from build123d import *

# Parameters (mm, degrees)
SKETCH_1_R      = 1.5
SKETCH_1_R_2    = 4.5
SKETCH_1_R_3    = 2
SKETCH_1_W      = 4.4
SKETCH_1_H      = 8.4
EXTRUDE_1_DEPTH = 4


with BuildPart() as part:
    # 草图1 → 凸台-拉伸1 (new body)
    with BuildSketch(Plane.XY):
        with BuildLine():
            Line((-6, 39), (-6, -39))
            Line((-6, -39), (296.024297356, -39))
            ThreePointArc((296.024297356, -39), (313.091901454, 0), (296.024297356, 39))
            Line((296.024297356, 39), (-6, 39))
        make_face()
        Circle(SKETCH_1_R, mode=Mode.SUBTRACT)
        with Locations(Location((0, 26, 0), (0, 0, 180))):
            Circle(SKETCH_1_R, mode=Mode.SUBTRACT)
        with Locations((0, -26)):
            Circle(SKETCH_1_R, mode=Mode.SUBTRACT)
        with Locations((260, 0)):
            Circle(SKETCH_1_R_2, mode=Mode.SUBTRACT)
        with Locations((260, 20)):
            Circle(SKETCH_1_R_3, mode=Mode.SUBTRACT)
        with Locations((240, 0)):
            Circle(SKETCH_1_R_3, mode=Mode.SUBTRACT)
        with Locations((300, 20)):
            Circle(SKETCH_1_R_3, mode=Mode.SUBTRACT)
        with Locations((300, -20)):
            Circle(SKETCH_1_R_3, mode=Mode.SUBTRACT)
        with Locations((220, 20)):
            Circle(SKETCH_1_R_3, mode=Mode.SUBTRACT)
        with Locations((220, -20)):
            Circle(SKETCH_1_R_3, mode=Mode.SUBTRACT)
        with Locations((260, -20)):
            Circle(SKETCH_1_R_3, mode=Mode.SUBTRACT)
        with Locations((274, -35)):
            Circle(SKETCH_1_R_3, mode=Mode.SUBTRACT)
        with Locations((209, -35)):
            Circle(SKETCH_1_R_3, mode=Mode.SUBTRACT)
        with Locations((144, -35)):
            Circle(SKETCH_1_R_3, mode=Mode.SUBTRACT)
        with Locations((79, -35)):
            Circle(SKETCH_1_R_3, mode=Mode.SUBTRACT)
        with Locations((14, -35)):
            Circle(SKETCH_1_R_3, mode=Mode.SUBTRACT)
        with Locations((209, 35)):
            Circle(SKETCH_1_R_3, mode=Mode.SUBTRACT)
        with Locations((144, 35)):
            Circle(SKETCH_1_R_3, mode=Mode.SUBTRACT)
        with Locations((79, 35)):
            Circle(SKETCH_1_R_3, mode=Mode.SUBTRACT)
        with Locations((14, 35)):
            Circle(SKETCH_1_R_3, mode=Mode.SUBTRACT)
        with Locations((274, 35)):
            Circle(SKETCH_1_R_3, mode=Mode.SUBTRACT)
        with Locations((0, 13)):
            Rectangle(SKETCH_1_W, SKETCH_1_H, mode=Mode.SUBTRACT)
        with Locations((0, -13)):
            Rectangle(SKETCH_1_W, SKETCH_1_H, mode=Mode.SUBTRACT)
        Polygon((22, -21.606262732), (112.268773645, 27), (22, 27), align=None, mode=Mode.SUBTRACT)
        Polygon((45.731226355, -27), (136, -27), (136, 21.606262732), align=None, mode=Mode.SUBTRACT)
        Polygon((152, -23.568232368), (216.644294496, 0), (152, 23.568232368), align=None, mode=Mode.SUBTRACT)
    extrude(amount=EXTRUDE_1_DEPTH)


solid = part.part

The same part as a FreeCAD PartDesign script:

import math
import FreeCAD as App
import Part
import Sketcher
from FreeCAD import Vector
Q = App.Units.Quantity


def add_polygon(sketch, points):
    """Adds a closed chain of lines whose ends are joined by coincident constraints."""
    first, n = sketch.GeometryCount, len(points)
    for a, b in zip(points, points[1:] + points[:1]):
        sketch.addGeometry(Part.LineSegment(App.Vector(*a, 0), App.Vector(*b, 0)), False)
    for i in range(n):
        sketch.addConstraint(Sketcher.Constraint("Coincident", first + i, 2, first + (i + 1) % n, 1))

doc = App.newDocument("Part")
body = doc.addObject("PartDesign::Body", "Body")

# Sketch on XY plane
sketch1 = body.newObject("Sketcher::SketchObject", "Sketch")
sketch1.AttachmentSupport = (doc.getObject("XY_Plane"), [""])
sketch1.MapMode = "FlatFace"
sketch1.addGeometry(Part.LineSegment(Vector(-6, 39, 0), Vector(-6, -39, 0)), False)  # 0
sketch1.addGeometry(Part.LineSegment(Vector(-6, -39, 0), Vector(296, -39, 0)), False)  # 1
sketch1.addGeometry(Part.ArcOfCircle(Part.Circle(Vector(260, 0, 0), Vector(0, 0, 1), 53.1), math.radians(-47), math.radians(47)), False)  # 2
sketch1.addGeometry(Part.LineSegment(Vector(296, 39, 0), Vector(-6, 39, 0)), False)  # 3
sketch1.addGeometry(Part.Circle(Vector(14, -35, 0), Vector(0, 0, 1), 2), False)  # 4
sketch1.addGeometry(Part.Circle(Vector(0, -26, 0), Vector(0, 0, 1), 1.5), False)  # 5
sketch1.addGeometry(Part.Circle(Vector(79, -35, 0), Vector(0, 0, 1), 2), False)  # 6
sketch1.addGeometry(Part.Circle(Vector(144, -35, 0), Vector(0, 0, 1), 2), False)  # 7
add_polygon(sketch1, [(2.2, -17.2), (-2.2, -17.2), (-2.2, -8.8), (2.2, -8.8)])  # lines 8-11
add_polygon(sketch1, [(136, -27), (45.7, -27), (136, 21.6)])  # lines 12-14
sketch1.addGeometry(Part.Circle(Vector(209, -35, 0), Vector(0, 0, 1), 2), False)  # 15
sketch1.addGeometry(Part.Circle(Vector(220, -20, 0), Vector(0, 0, 1), 2), False)  # 16
sketch1.addGeometry(Part.Circle(Vector(274, -35, 0), Vector(0, 0, 1), 2), False)  # 17
sketch1.addGeometry(Part.Circle(Vector(260, -20, 0), Vector(0, 0, 1), 2), False)  # 18
sketch1.addGeometry(Part.Circle(Vector(300, -20, 0), Vector(0, 0, 1), 2), False)  # 19
sketch1.addGeometry(Part.Circle(Vector(0, 0, 0), Vector(0, 0, 1), 1.5), False)  # 20
add_polygon(sketch1, [(112.3, 27), (22, -21.6), (22, 27)])  # lines 21-23
add_polygon(sketch1, [(2.2, 8.8), (-2.2, 8.8), (-2.2, 17.2), (2.2, 17.2)])  # lines 24-27
sketch1.addGeometry(Part.Circle(Vector(0, 26, 0), Vector(0, 0, 1), 1.5), False)  # 28
sketch1.addGeometry(Part.Circle(Vector(14, 35, 0), Vector(0, 0, 1), 2), False)  # 29
sketch1.addGeometry(Part.Circle(Vector(79, 35, 0), Vector(0, 0, 1), 2), False)  # 30
sketch1.addGeometry(Part.Circle(Vector(144, 35, 0), Vector(0, 0, 1), 2), False)  # 31
add_polygon(sketch1, [(216.6, 0), (152, -23.6), (152, 23.6)])  # lines 32-34
sketch1.addGeometry(Part.Circle(Vector(240, 0, 0), Vector(0, 0, 1), 2), False)  # 35
sketch1.addGeometry(Part.Circle(Vector(260, 0, 0), Vector(0, 0, 1), 4.5), False)  # 36
sketch1.addGeometry(Part.Circle(Vector(220, 20, 0), Vector(0, 0, 1), 2), False)  # 37
sketch1.addGeometry(Part.Circle(Vector(209, 35, 0), Vector(0, 0, 1), 2), False)  # 38
sketch1.addGeometry(Part.Circle(Vector(260, 20, 0), Vector(0, 0, 1), 2), False)  # 39
sketch1.addGeometry(Part.Circle(Vector(300, 20, 0), Vector(0, 0, 1), 2), False)  # 40
sketch1.addGeometry(Part.Circle(Vector(274, 35, 0), Vector(0, 0, 1), 2), False)  # 41
sketch1.addConstraint(Sketcher.Constraint("Coincident", 0, 2, 1, 1))
sketch1.addConstraint(Sketcher.Constraint("Coincident", 1, 2, 2, 1))
sketch1.addConstraint(Sketcher.Constraint("Coincident", 2, 2, 3, 1))
sketch1.addConstraint(Sketcher.Constraint("Coincident", 3, 2, 0, 1))
sketch1.addConstraint(Sketcher.Constraint("Vertical", 0))
sketch1.addConstraint(Sketcher.Constraint("Horizontal", 1))
sketch1.addConstraint(Sketcher.Constraint("Horizontal", 3))
sketch1.addConstraint(Sketcher.Constraint("Horizontal", 8))
sketch1.addConstraint(Sketcher.Constraint("Vertical", 9))
sketch1.addConstraint(Sketcher.Constraint("Horizontal", 10))
sketch1.addConstraint(Sketcher.Constraint("Vertical", 11))
sketch1.addConstraint(Sketcher.Constraint("Horizontal", 12))
sketch1.addConstraint(Sketcher.Constraint("Vertical", 14))
sketch1.addConstraint(Sketcher.Constraint("Vertical", 22))
sketch1.addConstraint(Sketcher.Constraint("Horizontal", 23))
sketch1.addConstraint(Sketcher.Constraint("Horizontal", 24))
sketch1.addConstraint(Sketcher.Constraint("Vertical", 25))
sketch1.addConstraint(Sketcher.Constraint("Horizontal", 26))
sketch1.addConstraint(Sketcher.Constraint("Vertical", 27))
sketch1.addConstraint(Sketcher.Constraint("Vertical", 33))
sketch1.addConstraint(Sketcher.Constraint("Coincident", 20, 3, -1, 1))
sketch1.addConstraint(Sketcher.Constraint("Coincident", 36, 3, 2, 3))
sketch1.addConstraint(Sketcher.Constraint("Equal", 4, 6))
sketch1.addConstraint(Sketcher.Constraint("Equal", 6, 7))
sketch1.addConstraint(Sketcher.Constraint("Equal", 7, 15))
sketch1.addConstraint(Sketcher.Constraint("Equal", 15, 16))
sketch1.addConstraint(Sketcher.Constraint("Equal", 16, 17))
sketch1.addConstraint(Sketcher.Constraint("Equal", 17, 18))
sketch1.addConstraint(Sketcher.Constraint("Equal", 18, 19))
sketch1.addConstraint(Sketcher.Constraint("Equal", 5, 20))
sketch1.addConstraint(Sketcher.Constraint("Equal", 20, 28))
sketch1.addConstraint(Sketcher.Constraint("Equal", 19, 29))
sketch1.addConstraint(Sketcher.Constraint("Equal", 29, 30))
sketch1.addConstraint(Sketcher.Constraint("Equal", 30, 31))
sketch1.addConstraint(Sketcher.Constraint("Equal", 31, 35))
sketch1.addConstraint(Sketcher.Constraint("Equal", 35, 37))
sketch1.addConstraint(Sketcher.Constraint("Equal", 37, 38))
sketch1.addConstraint(Sketcher.Constraint("Equal", 38, 39))
sketch1.addConstraint(Sketcher.Constraint("Equal", 39, 40))
sketch1.addConstraint(Sketcher.Constraint("Equal", 40, 41))
sketch1.addConstraint(Sketcher.Constraint("Symmetric", 5, 3, 28, 3, -1, 1))
sketch1.addConstraint(Sketcher.Constraint("Symmetric", 10, 2, 24, 2, -1, 1))
sketch1.addConstraint(Sketcher.Constraint("Symmetric", 8, 2, 26, 2, -1, 1))
sketch1.addConstraint(Sketcher.Constraint("Symmetric", 4, 3, 29, 3, -1))
sketch1.addConstraint(Sketcher.Constraint("Symmetric", 6, 3, 30, 3, -1))
sketch1.addConstraint(Sketcher.Constraint("Symmetric", 7, 3, 31, 3, -1))
sketch1.addConstraint(Sketcher.Constraint("Symmetric", 16, 3, 37, 3, -1))
sketch1.addConstraint(Sketcher.Constraint("Symmetric", 15, 3, 38, 3, -1))
sketch1.addConstraint(Sketcher.Constraint("Symmetric", 18, 3, 39, 3, -1))
sketch1.addConstraint(Sketcher.Constraint("Symmetric", 19, 3, 40, 3, -1))
sketch1.addConstraint(Sketcher.Constraint("Symmetric", 17, 3, 41, 3, -1))
sketch1.addConstraint(Sketcher.Constraint("Symmetric", 1, 2, 2, 2, -1))
sketch1.addConstraint(Sketcher.Constraint("PointOnObject", 5, 3, -2))
sketch1.addConstraint(Sketcher.Constraint("PointOnObject", 35, 3, -1))
sketch1.addConstraint(Sketcher.Constraint("PointOnObject", 34, 2, -1))
sketch1.addConstraint(Sketcher.Constraint("Parallel", 13, 21))
sketch1.addConstraint(Sketcher.Constraint("Horizontal", 4, 3, 6, 3))
sketch1.addConstraint(Sketcher.Constraint("Horizontal", 6, 3, 7, 3))
sketch1.addConstraint(Sketcher.Constraint("Horizontal", 7, 3, 15, 3))
sketch1.addConstraint(Sketcher.Constraint("Horizontal", 15, 3, 17, 3))
sketch1.addConstraint(Sketcher.Constraint("Horizontal", 16, 3, 18, 3))
sketch1.addConstraint(Sketcher.Constraint("Horizontal", 18, 3, 19, 3))
sketch1.addConstraint(Sketcher.Constraint("Vertical", 2, 3, 18, 3))
sketch1.addConstraint(Sketcher.Constraint("Vertical", 9, 2, 24, 2))
sketch1.addConstraint(Sketcher.Constraint("Equal", 12, 23))
sketch1.addConstraint(Sketcher.Constraint("Equal", 32, 34))
sketch1.addConstraint(Sketcher.Constraint("Diameter", 4, Q("4 mm")))
sketch1.addConstraint(Sketcher.Constraint("Diameter", 5, Q("3 mm")))
sketch1.addConstraint(Sketcher.Constraint("Diameter", 36, Q("9 mm")))
sketch1.addConstraint(Sketcher.Constraint("DistanceY", 0, 2, 0, 1, Q("78 mm")))
sketch1.addConstraint(Sketcher.Constraint("DistanceX", 8, 2, 8, 1, Q("4.4 mm")))
sketch1.addConstraint(Sketcher.Constraint("DistanceY", 9, 1, 9, 2, Q("8.4 mm")))
sketch1.addConstraint(Sketcher.Constraint("DistanceX", -1, 1, 2, 3, Q("260 mm")))
sketch1.addConstraint(Sketcher.Constraint("DistanceX", -1, 1, 4, 3, Q("14 mm")))
sketch1.addConstraint(Sketcher.Constraint("DistanceY", 4, 3, -1, 1, Q("35 mm")))
sketch1.addConstraint(Sketcher.Constraint("DistanceY", 5, 3, -1, 1, Q("26 mm")))
sketch1.addConstraint(Sketcher.Constraint("DistanceX", -1, 1, 6, 3, Q("79 mm")))
sketch1.addConstraint(Sketcher.Constraint("DistanceX", -1, 1, 7, 3, Q("144 mm")))
sketch1.addConstraint(Sketcher.Constraint("DistanceX", -1, 1, 15, 3, Q("209 mm")))
sketch1.addConstraint(Sketcher.Constraint("DistanceX", -1, 1, 16, 3, Q("220 mm")))
sketch1.addConstraint(Sketcher.Constraint("DistanceY", 16, 3, -1, 1, Q("20 mm")))
sketch1.addConstraint(Sketcher.Constraint("DistanceX", -1, 1, 17, 3, Q("274 mm")))
sketch1.addConstraint(Sketcher.Constraint("DistanceX", -1, 1, 19, 3, Q("300 mm")))
sketch1.addConstraint(Sketcher.Constraint("DistanceX", -1, 1, 35, 3, Q("240 mm")))
sketch1.addConstraint(Sketcher.Constraint("DistanceX", 0, 2, -1, 1, Q("6 mm")))
sketch1.addConstraint(Sketcher.Constraint("DistanceY", 12, 2, -1, 1, Q("27 mm")))
sketch1.addConstraint(Sketcher.Constraint("DistanceX", -1, 1, 13, 2, Q("136 mm")))
sketch1.addConstraint(Sketcher.Constraint("DistanceX", -1, 1, 21, 2, Q("22 mm")))
sketch1.addConstraint(Sketcher.Constraint("DistanceY", -1, 1, 22, 2, Q("27 mm")))
sketch1.addConstraint(Sketcher.Constraint("DistanceX", -1, 1, 32, 2, Q("152 mm")))
sketch1.addConstraint(Sketcher.Constraint("DistanceY", 8, 2, 24, 2, Q("26 mm")))
sketch1.addConstraint(Sketcher.Constraint("Radius", 2, Q("53.091901 mm")))
sketch1.addConstraint(Sketcher.Constraint("DistanceX", 12, 2, 12, 1, Q("90.268774 mm")))
sketch1.addConstraint(Sketcher.Constraint("DistanceY", 14, 2, 14, 1, Q("48.606263 mm")))
sketch1.addConstraint(Sketcher.Constraint("DistanceY", 33, 1, 33, 2, Q("47.136465 mm")))
sketch1.addConstraint(Sketcher.Constraint("Distance", 32, Q("68.806587 mm")))
pad1 = body.newObject("PartDesign::Pad", "Pad")
pad1.Profile = sketch1
pad1.Length = 4

doc.recompute()
